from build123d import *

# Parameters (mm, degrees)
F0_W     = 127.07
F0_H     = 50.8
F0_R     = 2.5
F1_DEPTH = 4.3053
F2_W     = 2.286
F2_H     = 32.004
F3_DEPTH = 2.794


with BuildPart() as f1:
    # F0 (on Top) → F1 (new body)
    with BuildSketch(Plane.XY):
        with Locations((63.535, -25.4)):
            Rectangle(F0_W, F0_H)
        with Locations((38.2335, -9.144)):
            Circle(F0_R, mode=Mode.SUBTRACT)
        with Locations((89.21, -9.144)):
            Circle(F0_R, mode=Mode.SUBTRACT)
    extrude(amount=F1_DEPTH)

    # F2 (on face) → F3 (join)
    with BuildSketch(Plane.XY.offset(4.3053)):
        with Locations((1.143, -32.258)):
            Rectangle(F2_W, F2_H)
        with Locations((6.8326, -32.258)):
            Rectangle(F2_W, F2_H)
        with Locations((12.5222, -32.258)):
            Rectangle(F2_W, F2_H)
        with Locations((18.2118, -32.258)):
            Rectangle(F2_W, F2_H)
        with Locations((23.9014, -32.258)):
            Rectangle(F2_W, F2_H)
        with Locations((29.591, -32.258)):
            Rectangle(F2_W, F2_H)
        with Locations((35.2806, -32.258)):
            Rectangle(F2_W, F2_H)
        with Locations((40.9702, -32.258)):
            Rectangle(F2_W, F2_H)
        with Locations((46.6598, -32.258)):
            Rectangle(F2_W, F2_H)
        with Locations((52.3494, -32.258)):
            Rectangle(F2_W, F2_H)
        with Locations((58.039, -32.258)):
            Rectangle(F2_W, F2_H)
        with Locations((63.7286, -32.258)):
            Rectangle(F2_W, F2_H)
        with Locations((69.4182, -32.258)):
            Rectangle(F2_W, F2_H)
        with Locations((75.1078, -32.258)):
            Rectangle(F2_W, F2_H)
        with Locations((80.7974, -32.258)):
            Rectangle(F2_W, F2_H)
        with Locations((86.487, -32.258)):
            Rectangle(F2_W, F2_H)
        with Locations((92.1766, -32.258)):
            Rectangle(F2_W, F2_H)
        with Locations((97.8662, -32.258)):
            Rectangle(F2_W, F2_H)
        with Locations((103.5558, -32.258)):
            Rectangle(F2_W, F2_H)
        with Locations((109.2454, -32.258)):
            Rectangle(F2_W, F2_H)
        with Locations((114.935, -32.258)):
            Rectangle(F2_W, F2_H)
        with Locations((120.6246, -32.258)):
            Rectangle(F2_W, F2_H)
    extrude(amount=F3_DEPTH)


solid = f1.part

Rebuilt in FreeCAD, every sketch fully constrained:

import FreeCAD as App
import Part
import Sketcher
Q = App.Units.Quantity

doc = App.newDocument("Part")
body = doc.addObject("PartDesign::Body", "Body")

# Sketch on XY plane
sketch1 = body.newObject("Sketcher::SketchObject", "Sketch")
sketch1.AttachmentSupport = (doc.getObject("XY_Plane"), [""])
sketch1.MapMode = "FlatFace"
sketch1.addGeometry([
    Part.LineSegment(App.Vector(0, 0, 0), App.Vector(0, -50.8, 0)),  # 0
    Part.LineSegment(App.Vector(0, -50.8, 0), App.Vector(127.07, -50.8, 0)),  # 1
    Part.LineSegment(App.Vector(127.07, -50.8, 0), App.Vector(127.07, 0, 0)),  # 2
    Part.LineSegment(App.Vector(127.07, 0, 0), App.Vector(0, 0, 0)),  # 3
    Part.Circle(App.Vector(38.2335, -9.144, 0), App.Vector(0, 0, 1), 2.5),  # 4
    Part.Circle(App.Vector(89.21, -9.144, 0), App.Vector(0, 0, 1), 2.5),  # 5
], False)
sketch1.addConstraint([
    Sketcher.Constraint("Coincident", 0, 2, 1, 1),
    Sketcher.Constraint("Coincident", 1, 2, 2, 1),
    Sketcher.Constraint("Coincident", 2, 2, 3, 1),
    Sketcher.Constraint("Coincident", 3, 2, 0, 1),
    Sketcher.Constraint("Vertical", 0),
    Sketcher.Constraint("Horizontal", 1),
    Sketcher.Constraint("Vertical", 2),
    Sketcher.Constraint("Horizontal", 3),
    Sketcher.Constraint("Coincident", 3, 2, -1, 1),
    Sketcher.Constraint("Equal", 4, 5),
    Sketcher.Constraint("Horizontal", 4, 3, 5, 3),
    Sketcher.Constraint("DistanceY", 0, 2, 0, 1, Q("2 in")),
    Sketcher.Constraint("Diameter", 4, 5.0),
    Sketcher.Constraint("DistanceY", 4, 3, -1, 1, Q("0.36 in")),
    Sketcher.Constraint("DistanceX", 1, 1, 1, 2, 127.07),
    Sketcher.Constraint("DistanceX", 4, 3, 1, 2, Q("3.4975 in")),
    Sketcher.Constraint("DistanceX", -1, 1, 5, 3, 89.21),
])
pad1 = body.newObject("PartDesign::Pad", "Pad")
pad1.Profile = sketch1
pad1.Length = Q("0.1695 in")

# Sketch on XY plane
sketch2 = body.newObject("Sketcher::SketchObject", "Sketch001")
sketch2.AttachmentSupport = (doc.getObject("XY_Plane"), [""])
sketch2.MapMode = "FlatFace"
sketch2.AttachmentOffset = App.Placement(App.Vector(0, 0, 0.1695 * 25.4), App.Rotation())
sketch2.addGeometry([
    Part.LineSegment(App.Vector(0, -16.256, 0), App.Vector(0, -48.26, 0)),  # 0
    Part.LineSegment(App.Vector(0, -48.26, 0), App.Vector(2.286, -48.26, 0)),  # 1
    Part.LineSegment(App.Vector(2.286, -48.26, 0), App.Vector(2.286, -16.256, 0)),  # 2
    Part.LineSegment(App.Vector(2.286, -16.256, 0), App.Vector(0, -16.256, 0)),  # 3
    Part.LineSegment(App.Vector(5.6896, -16.256, 0), App.Vector(5.6896, -48.26, 0)),  # 4
    Part.LineSegment(App.Vector(5.6896, -48.26, 0), App.Vector(7.9756, -48.26, 0)),  # 5
    Part.LineSegment(App.Vector(7.9756, -48.26, 0), App.Vector(7.9756, -16.256, 0)),  # 6
    Part.LineSegment(App.Vector(7.9756, -16.256, 0), App.Vector(5.6896, -16.256, 0)),  # 7
    Part.LineSegment(App.Vector(11.3792, -16.256, 0), App.Vector(11.3792, -48.26, 0)),  # 8
    Part.LineSegment(App.Vector(11.3792, -48.26, 0), App.Vector(13.6652, -48.26, 0)),  # 9
    Part.LineSegment(App.Vector(13.6652, -48.26, 0), App.Vector(13.6652, -16.256, 0)),  # 10
    Part.LineSegment(App.Vector(13.6652, -16.256, 0), App.Vector(11.3792, -16.256, 0)),  # 11
    Part.LineSegment(App.Vector(17.0688, -16.256, 0), App.Vector(17.0688, -48.26, 0)),  # 12
    Part.LineSegment(App.Vector(17.0688, -48.26, 0), App.Vector(19.3548, -48.26, 0)),  # 13
    Part.LineSegment(App.Vector(19.3548, -48.26, 0), App.Vector(19.3548, -16.256, 0)),  # 14
    Part.LineSegment(App.Vector(19.3548, -16.256, 0), App.Vector(17.0688, -16.256, 0)),  # 15
    Part.LineSegment(App.Vector(22.7584, -16.256, 0), App.Vector(22.7584, -48.26, 0)),  # 16
    Part.LineSegment(App.Vector(22.7584, -48.26, 0), App.Vector(25.0444, -48.26, 0)),  # 17
    Part.LineSegment(App.Vector(25.0444, -48.26, 0), App.Vector(25.0444, -16.256, 0)),  # 18
    Part.LineSegment(App.Vector(25.0444, -16.256, 0), App.Vector(22.7584, -16.256, 0)),  # 19
    Part.LineSegment(App.Vector(28.448, -16.256, 0), App.Vector(28.448, -48.26, 0)),  # 20
    Part.LineSegment(App.Vector(28.448, -48.26, 0), App.Vector(30.734, -48.26, 0)),  # 21
    Part.LineSegment(App.Vector(30.734, -48.26, 0), App.Vector(30.734, -16.256, 0)),  # 22
    Part.LineSegment(App.Vector(30.734, -16.256, 0), App.Vector(28.448, -16.256, 0)),  # 23
    Part.LineSegment(App.Vector(34.1376, -16.256, 0), App.Vector(34.1376, -48.26, 0)),  # 24
    Part.LineSegment(App.Vector(34.1376, -48.26, 0), App.Vector(36.4236, -48.26, 0)),  # 25
    Part.LineSegment(App.Vector(36.4236, -48.26, 0), App.Vector(36.4236, -16.256, 0)),  # 26
    Part.LineSegment(App.Vector(36.4236, -16.256, 0), App.Vector(34.1376, -16.256, 0)),  # 27
    Part.LineSegment(App.Vector(39.8272, -16.256, 0), App.Vector(39.8272, -48.26, 0)),  # 28
    Part.LineSegment(App.Vector(39.8272, -48.26, 0), App.Vector(42.1132, -48.26, 0)),  # 29
    Part.LineSegment(App.Vector(42.1132, -48.26, 0), App.Vector(42.1132, -16.256, 0)),  # 30
    Part.LineSegment(App.Vector(42.1132, -16.256, 0), App.Vector(39.8272, -16.256, 0)),  # 31
    Part.LineSegment(App.Vector(45.5168, -16.256, 0), App.Vector(45.5168, -48.26, 0)),  # 32
    Part.LineSegment(App.Vector(45.5168, -48.26, 0), App.Vector(47.8028, -48.26, 0)),  # 33
    Part.LineSegment(App.Vector(47.8028, -48.26, 0), App.Vector(47.8028, -16.256, 0)),  # 34
    Part.LineSegment(App.Vector(47.8028, -16.256, 0), App.Vector(45.5168, -16.256, 0)),  # 35
    Part.LineSegment(App.Vector(51.2064, -16.256, 0), App.Vector(51.2064, -48.26, 0)),  # 36
    Part.LineSegment(App.Vector(51.2064, -48.26, 0), App.Vector(53.4924, -48.26, 0)),  # 37
    Part.LineSegment(App.Vector(53.4924, -48.26, 0), App.Vector(53.4924, -16.256, 0)),  # 38
    Part.LineSegment(App.Vector(53.4924, -16.256, 0), App.Vector(51.2064, -16.256, 0)),  # 39
    Part.LineSegment(App.Vector(56.896, -16.256, 0), App.Vector(56.896, -48.26, 0)),  # 40
    Part.LineSegment(App.Vector(56.896, -48.26, 0), App.Vector(59.182, -48.26, 0)),  # 41
    Part.LineSegment(App.Vector(59.182, -48.26, 0), App.Vector(59.182, -16.256, 0)),  # 42
    Part.LineSegment(App.Vector(59.182, -16.256, 0), App.Vector(56.896, -16.256, 0)),  # 43
    Part.LineSegment(App.Vector(62.5856, -16.256, 0), App.Vector(62.5856, -48.26, 0)),  # 44
    Part.LineSegment(App.Vector(62.5856, -48.26, 0), App.Vector(64.8716, -48.26, 0)),  # 45
    Part.LineSegment(App.Vector(64.8716, -48.26, 0), App.Vector(64.8716, -16.256, 0)),  # 46
    Part.LineSegment(App.Vector(64.8716, -16.256, 0), App.Vector(62.5856, -16.256, 0)),  # 47
    Part.LineSegment(App.Vector(68.2752, -16.256, 0), App.Vector(68.2752, -48.26, 0)),  # 48
    Part.LineSegment(App.Vector(68.2752, -48.26, 0), App.Vector(70.5612, -48.26, 0)),  # 49
    Part.LineSegment(App.Vector(70.5612, -48.26, 0), App.Vector(70.5612, -16.256, 0)),  # 50
    Part.LineSegment(App.Vector(70.5612, -16.256, 0), App.Vector(68.2752, -16.256, 0)),  # 51
    Part.LineSegment(App.Vector(73.9648, -16.256, 0), App.Vector(73.9648, -48.26, 0)),  # 52
    Part.LineSegment(App.Vector(73.9648, -48.26, 0), App.Vector(76.2508, -48.26, 0)),  # 53
    Part.LineSegment(App.Vector(76.2508, -48.26, 0), App.Vector(76.2508, -16.256, 0)),  # 54
    Part.LineSegment(App.Vector(76.2508, -16.256, 0), App.Vector(73.9648, -16.256, 0)),  # 55
    Part.LineSegment(App.Vector(79.6544, -16.256, 0), App.Vector(79.6544, -48.26, 0)),  # 56
    Part.LineSegment(App.Vector(79.6544, -48.26, 0), App.Vector(81.9404, -48.26, 0)),  # 57
    Part.LineSegment(App.Vector(81.9404, -48.26, 0), App.Vector(81.9404, -16.256, 0)),  # 58
    Part.LineSegment(App.Vector(81.9404, -16.256, 0), App.Vector(79.6544, -16.256, 0)),  # 59
    Part.LineSegment(App.Vector(85.344, -16.256, 0), App.Vector(85.344, -48.26, 0)),  # 60
    Part.LineSegment(App.Vector(85.344, -48.26, 0), App.Vector(87.63, -48.26, 0)),  # 61
    Part.LineSegment(App.Vector(87.63, -48.26, 0), App.Vector(87.63, -16.256, 0)),  # 62
    Part.LineSegment(App.Vector(87.63, -16.256, 0), App.Vector(85.344, -16.256, 0)),  # 63
    Part.LineSegment(App.Vector(91.0336, -16.256, 0), App.Vector(91.0336, -48.26, 0)),  # 64
    Part.LineSegment(App.Vector(91.0336, -48.26, 0), App.Vector(93.3196, -48.26, 0)),  # 65
    Part.LineSegment(App.Vector(93.3196, -48.26, 0), App.Vector(93.3196, -16.256, 0)),  # 66
    Part.LineSegment(App.Vector(93.3196, -16.256, 0), App.Vector(91.0336, -16.256, 0)),  # 67
    Part.LineSegment(App.Vector(96.7232, -16.256, 0), App.Vector(96.7232, -48.26, 0)),  # 68
    Part.LineSegment(App.Vector(96.7232, -48.26, 0), App.Vector(99.0092, -48.26, 0)),  # 69
    Part.LineSegment(App.Vector(99.0092, -48.26, 0), App.Vector(99.0092, -16.256, 0)),  # 70
    Part.LineSegment(App.Vector(99.0092, -16.256, 0), App.Vector(96.7232, -16.256, 0)),  # 71
    Part.LineSegment(App.Vector(102.4128, -16.256, 0), App.Vector(102.4128, -48.26, 0)),  # 72
    Part.LineSegment(App.Vector(102.4128, -48.26, 0), App.Vector(104.6988, -48.26, 0)),  # 73
    Part.LineSegment(App.Vector(104.6988, -48.26, 0), App.Vector(104.6988, -16.256, 0)),  # 74
    Part.LineSegment(App.Vector(104.6988, -16.256, 0), App.Vector(102.4128, -16.256, 0)),  # 75
    Part.LineSegment(App.Vector(108.1024, -16.256, 0), App.Vector(108.1024, -48.26, 0)),  # 76
    Part.LineSegment(App.Vector(108.1024, -48.26, 0), App.Vector(110.3884, -48.26, 0)),  # 77
    Part.LineSegment(App.Vector(110.3884, -48.26, 0), App.Vector(110.3884, -16.256, 0)),  # 78
    Part.LineSegment(App.Vector(110.3884, -16.256, 0), App.Vector(108.1024, -16.256, 0)),  # 79
    Part.LineSegment(App.Vector(113.792, -16.256, 0), App.Vector(113.792, -48.26, 0)),  # 80
    Part.LineSegment(App.Vector(113.792, -48.26, 0), App.Vector(116.078, -48.26, 0)),  # 81
    Part.LineSegment(App.Vector(116.078, -48.26, 0), App.Vector(116.078, -16.256, 0)),  # 82
    Part.LineSegment(App.Vector(116.078, -16.256, 0), App.Vector(113.792, -16.256, 0)),  # 83
    Part.LineSegment(App.Vector(119.4816, -16.256, 0), App.Vector(119.4816, -48.26, 0)),  # 84
    Part.LineSegment(App.Vector(119.4816, -48.26, 0), App.Vector(121.7676, -48.26, 0)),  # 85
    Part.LineSegment(App.Vector(121.7676, -48.26, 0), App.Vector(121.7676, -16.256, 0)),  # 86
    Part.LineSegment(App.Vector(121.7676, -16.256, 0), App.Vector(119.4816, -16.256, 0)),  # 87
], False)
sketch2.addConstraint([
    Sketcher.Constraint("Coincident", 0, 2, 1, 1),
    Sketcher.Constraint("Coincident", 1, 2, 2, 1),
    Sketcher.Constraint("Coincident", 2, 2, 3, 1),
    Sketcher.Constraint("Coincident", 3, 2, 0, 1),
    Sketcher.Constraint("Coincident", 4, 2, 5, 1),
    Sketcher.Constraint("Coincident", 5, 2, 6, 1),
    Sketcher.Constraint("Coincident", 6, 2, 7, 1),
    Sketcher.Constraint("Coincident", 7, 2, 4, 1),
    Sketcher.Constraint("Coincident", 8, 2, 9, 1),
    Sketcher.Constraint("Coincident", 9, 2, 10, 1),
    Sketcher.Constraint("Coincident", 10, 2, 11, 1),
    Sketcher.Constraint("Coincident", 11, 2, 8, 1),
    Sketcher.Constraint("Coincident", 12, 2, 13, 1),
    Sketcher.Constraint("Coincident", 13, 2, 14, 1),
    Sketcher.Constraint("Coincident", 14, 2, 15, 1),
    Sketcher.Constraint("Coincident", 15, 2, 12, 1),
    Sketcher.Constraint("Coincident", 16, 2, 17, 1),
    Sketcher.Constraint("Coincident", 17, 2, 18, 1),
    Sketcher.Constraint("Coincident", 18, 2, 19, 1),
    Sketcher.Constraint("Coincident", 19, 2, 16, 1),
    Sketcher.Constraint("Coincident", 20, 2, 21, 1),
    Sketcher.Constraint("Coincident", 21, 2, 22, 1),
    Sketcher.Constraint("Coincident", 22, 2, 23, 1),
    Sketcher.Constraint("Coincident", 23, 2, 20, 1),
    Sketcher.Constraint("Coincident", 24, 2, 25, 1),
    Sketcher.Constraint("Coincident", 25, 2, 26, 1),
    Sketcher.Constraint("Coincident", 26, 2, 27, 1),
    Sketcher.Constraint("Coincident", 27, 2, 24, 1),
    Sketcher.Constraint("Coincident", 28, 2, 29, 1),
    Sketcher.Constraint("Coincident", 29, 2, 30, 1),
    Sketcher.Constraint("Coincident", 30, 2, 31, 1),
    Sketcher.Constraint("Coincident", 31, 2, 28, 1),
    Sketcher.Constraint("Coincident", 32, 2, 33, 1),
    Sketcher.Constraint("Coincident", 33, 2, 34, 1),
    Sketcher.Constraint("Coincident", 34, 2, 35, 1),
    Sketcher.Constraint("Coincident", 35, 2, 32, 1),
    Sketcher.Constraint("Coincident", 36, 2, 37, 1),
    Sketcher.Constraint("Coincident", 37, 2, 38, 1),
    Sketcher.Constraint("Coincident", 38, 2, 39, 1),
    Sketcher.Constraint("Coincident", 39, 2, 36, 1),
    Sketcher.Constraint("Coincident", 40, 2, 41, 1),
    Sketcher.Constraint("Coincident", 41, 2, 42, 1),
    Sketcher.Constraint("Coincident", 42, 2, 43, 1),
    Sketcher.Constraint("Coincident", 43, 2, 40, 1),
    Sketcher.Constraint("Coincident", 44, 2, 45, 1),
    Sketcher.Constraint("Coincident", 45, 2, 46, 1),
    Sketcher.Constraint("Coincident", 46, 2, 47, 1),
    Sketcher.Constraint("Coincident", 47, 2, 44, 1),
    Sketcher.Constraint("Coincident", 48, 2, 49, 1),
    Sketcher.Constraint("Coincident", 49, 2, 50, 1),
    Sketcher.Constraint("Coincident", 50, 2, 51, 1),
    Sketcher.Constraint("Coincident", 51, 2, 48, 1),
    Sketcher.Constraint("Coincident", 52, 2, 53, 1),
    Sketcher.Constraint("Coincident", 53, 2, 54, 1),
    Sketcher.Constraint("Coincident", 54, 2, 55, 1),
    Sketcher.Constraint("Coincident", 55, 2, 52, 1),
    Sketcher.Constraint("Coincident", 56, 2, 57, 1),
    Sketcher.Constraint("Coincident", 57, 2, 58, 1),
    Sketcher.Constraint("Coincident", 58, 2, 59, 1),
    Sketcher.Constraint("Coincident", 59, 2, 56, 1),
    Sketcher.Constraint("Coincident", 60, 2, 61, 1),
    Sketcher.Constraint("Coincident", 61, 2, 62, 1),
    Sketcher.Constraint("Coincident", 62, 2, 63, 1),
    Sketcher.Constraint("Coincident", 63, 2, 60, 1),
    Sketcher.Constraint("Coincident", 64, 2, 65, 1),
    Sketcher.Constraint("Coincident", 65, 2, 66, 1),
    Sketcher.Constraint("Coincident", 66, 2, 67, 1),
    Sketcher.Constraint("Coincident", 67, 2, 64, 1),
    Sketcher.Constraint("Coincident", 68, 2, 69, 1),
    Sketcher.Constraint("Coincident", 69, 2, 70, 1),
    Sketcher.Constraint("Coincident", 70, 2, 71, 1),
    Sketcher.Constraint("Coincident", 71, 2, 68, 1),
    Sketcher.Constraint("Coincident", 72, 2, 73, 1),
    Sketcher.Constraint("Coincident", 73, 2, 74, 1),
    Sketcher.Constraint("Coincident", 74, 2, 75, 1),
    Sketcher.Constraint("Coincident", 75, 2, 72, 1),
    Sketcher.Constraint("Coincident", 76, 2, 77, 1),
    Sketcher.Constraint("Coincident", 77, 2, 78, 1),
    Sketcher.Constraint("Coincident", 78, 2, 79, 1),
    Sketcher.Constraint("Coincident", 79, 2, 76, 1),
    Sketcher.Constraint("Coincident", 80, 2, 81, 1),
    Sketcher.Constraint("Coincident", 81, 2, 82, 1),
    Sketcher.Constraint("Coincident", 82, 2, 83, 1),
    Sketcher.Constraint("Coincident", 83, 2, 80, 1),
    Sketcher.Constraint("Coincident", 84, 2, 85, 1),
    Sketcher.Constraint("Coincident", 85, 2, 86, 1),
    Sketcher.Constraint("Coincident", 86, 2, 87, 1),
    Sketcher.Constraint("Coincident", 87, 2, 84, 1),
    Sketcher.Constraint("Vertical", 0),
    Sketcher.Constraint("Horizontal", 1),
    Sketcher.Constraint("Vertical", 2),
    Sketcher.Constraint("Horizontal", 3),
    Sketcher.Constraint("Vertical", 4),
    Sketcher.Constraint("Horizontal", 5),
    Sketcher.Constraint("Vertical", 6),
    Sketcher.Constraint("Horizontal", 7),
    Sketcher.Constraint("Vertical", 8),
    Sketcher.Constraint("Horizontal", 9),
    Sketcher.Constraint("Vertical", 10),
    Sketcher.Constraint("Horizontal", 11),
    Sketcher.Constraint("Vertical", 12),
    Sketcher.Constraint("Horizontal", 13),
    Sketcher.Constraint("Vertical", 14),
    Sketcher.Constraint("Horizontal", 15),
    Sketcher.Constraint("Vertical", 16),
    Sketcher.Constraint("Horizontal", 17),
    Sketcher.Constraint("Vertical", 18),
    Sketcher.Constraint("Horizontal", 19),
    Sketcher.Constraint("Vertical", 20),
    Sketcher.Constraint("Horizontal", 21),
    Sketcher.Constraint("Vertical", 22),
    Sketcher.Constraint("Horizontal", 23),
    Sketcher.Constraint("Vertical", 24),
    Sketcher.Constraint("Horizontal", 25),
    Sketcher.Constraint("Vertical", 26),
    Sketcher.Constraint("Horizontal", 27),
    Sketcher.Constraint("Vertical", 28),
    Sketcher.Constraint("Horizontal", 29),
    Sketcher.Constraint("Vertical", 30),
    Sketcher.Constraint("Horizontal", 31),
    Sketcher.Constraint("Vertical", 32),
    Sketcher.Constraint("Horizontal", 33),
    Sketcher.Constraint("Vertical", 34),
    Sketcher.Constraint("Horizontal", 35),
    Sketcher.Constraint("Vertical", 36),
    Sketcher.Constraint("Horizontal", 37),
    Sketcher.Constraint("Vertical", 38),
    Sketcher.Constraint("Horizontal", 39),
    Sketcher.Constraint("Vertical", 40),
    Sketcher.Constraint("Horizontal", 41),
    Sketcher.Constraint("Vertical", 42),
    Sketcher.Constraint("Horizontal", 43),
    Sketcher.Constraint("Vertical", 44),
    Sketcher.Constraint("Horizontal", 45),
    Sketcher.Constraint("Vertical", 46),
    Sketcher.Constraint("Horizontal", 47),
    Sketcher.Constraint("Vertical", 48),
    Sketcher.Constraint("Horizontal", 49),
    Sketcher.Constraint("Vertical", 50),
    Sketcher.Constraint("Horizontal", 51),
    Sketcher.Constraint("Vertical", 52),
    Sketcher.Constraint("Horizontal", 53),
    Sketcher.Constraint("Vertical", 54),
    Sketcher.Constraint("Horizontal", 55),
    Sketcher.Constraint("Vertical", 56),
    Sketcher.Constraint("Horizontal", 57),
    Sketcher.Constraint("Vertical", 58),
    Sketcher.Constraint("Horizontal", 59),
    Sketcher.Constraint("Vertical", 60),
    Sketcher.Constraint("Horizontal", 61),
    Sketcher.Constraint("Vertical", 62),
    Sketcher.Constraint("Horizontal", 63),
    Sketcher.Constraint("Vertical", 64),
    Sketcher.Constraint("Horizontal", 65),
    Sketcher.Constraint("Vertical", 66),
    Sketcher.Constraint("Horizontal", 67),
    Sketcher.Constraint("Vertical", 68),
    Sketcher.Constraint("Horizontal", 69),
    Sketcher.Constraint("Vertical", 70),
    Sketcher.Constraint("Horizontal", 71),
    Sketcher.Constraint("Vertical", 72),
    Sketcher.Constraint("Horizontal", 73),
    Sketcher.Constraint("Vertical", 74),
    Sketcher.Constraint("Horizontal", 75),
    Sketcher.Constraint("Vertical", 76),
    Sketcher.Constraint("Horizontal", 77),
    Sketcher.Constraint("Vertical", 78),
    Sketcher.Constraint("Horizontal", 79),
    Sketcher.Constraint("Vertical", 80),
    Sketcher.Constraint("Horizontal", 81),
    Sketcher.Constraint("Vertical", 82),
    Sketcher.Constraint("Horizontal", 83),
    Sketcher.Constraint("Vertical", 84),
    Sketcher.Constraint("Horizontal", 85),
    Sketcher.Constraint("Vertical", 86),
    Sketcher.Constraint("Horizontal", 87),
    Sketcher.Constraint("PointOnObject", 0, 2, -2),
    Sketcher.Constraint("Horizontal", 1, 2, 4, 2),
    Sketcher.Constraint("Horizontal", 3, 2, 6, 2),
    Sketcher.Constraint("Horizontal", 5, 2, 8, 2),
    Sketcher.Constraint("Horizontal", 7, 2, 10, 2),
    Sketcher.Constraint("Horizontal", 9, 2, 12, 2),
    Sketcher.Constraint("Horizontal", 11, 2, 14, 2),
    Sketcher.Constraint("Horizontal", 13, 2, 16, 2),
    Sketcher.Constraint("Horizontal", 15, 2, 18, 2),
    Sketcher.Constraint("Horizontal", 17, 2, 20, 2),
    Sketcher.Constraint("Horizontal", 19, 2, 22, 2),
    Sketcher.Constraint("Horizontal", 21, 2, 24, 2),
    Sketcher.Constraint("Horizontal", 23, 2, 26, 2),
    Sketcher.Constraint("Horizontal", 25, 2, 28, 2),
    Sketcher.Constraint("Horizontal", 27, 2, 30, 2),
    Sketcher.Constraint("Horizontal", 29, 2, 32, 2),
    Sketcher.Constraint("Horizontal", 31, 2, 34, 2),
    Sketcher.Constraint("Horizontal", 33, 2, 36, 2),
    Sketcher.Constraint("Horizontal", 35, 2, 38, 2),
    Sketcher.Constraint("Horizontal", 37, 2, 40, 2),
    Sketcher.Constraint("Horizontal", 39, 2, 42, 2),
    Sketcher.Constraint("Horizontal", 41, 2, 44, 2),
    Sketcher.Constraint("Horizontal", 43, 2, 46, 2),
    Sketcher.Constraint("Horizontal", 45, 2, 48, 2),
    Sketcher.Constraint("Horizontal", 47, 2, 50, 2),
    Sketcher.Constraint("Horizontal", 49, 2, 52, 2),
    Sketcher.Constraint("Horizontal", 51, 2, 54, 2),
    Sketcher.Constraint("Horizontal", 53, 2, 56, 2),
    Sketcher.Constraint("Horizontal", 55, 2, 58, 2),
    Sketcher.Constraint("Horizontal", 57, 2, 60, 2),
    Sketcher.Constraint("Horizontal", 59, 2, 62, 2),
    Sketcher.Constraint("Horizontal", 61, 2, 64, 2),
    Sketcher.Constraint("Horizontal", 63, 2, 66, 2),
    Sketcher.Constraint("Horizontal", 65, 2, 68, 2),
    Sketcher.Constraint("Horizontal", 67, 2, 70, 2),
    Sketcher.Constraint("Horizontal", 69, 2, 72, 2),
    Sketcher.Constraint("Horizontal", 71, 2, 74, 2),
    Sketcher.Constraint("Horizontal", 73, 2, 76, 2),
    Sketcher.Constraint("Horizontal", 75, 2, 78, 2),
    Sketcher.Constraint("Horizontal", 77, 2, 80, 2),
    Sketcher.Constraint("Horizontal", 79, 2, 82, 2),
    Sketcher.Constraint("Horizontal", 81, 2, 84, 2),
    Sketcher.Constraint("Horizontal", 83, 2, 86, 2),
    Sketcher.Constraint("Equal", 3, 5),
    Sketcher.Constraint("Equal", 7, 9),
    Sketcher.Constraint("Equal", 11, 13),
    Sketcher.Constraint("Equal", 15, 17),
    Sketcher.Constraint("Equal", 19, 21),
    Sketcher.Constraint("Equal", 23, 25),
    Sketcher.Constraint("Equal", 27, 29),
    Sketcher.Constraint("Equal", 31, 33),
    Sketcher.Constraint("Equal", 35, 37),
    Sketcher.Constraint("Equal", 39, 41),
    Sketcher.Constraint("Equal", 43, 45),
    Sketcher.Constraint("Equal", 47, 49),
    Sketcher.Constraint("Equal", 51, 53),
    Sketcher.Constraint("Equal", 55, 57),
    Sketcher.Constraint("Equal", 59, 61),
    Sketcher.Constraint("Equal", 63, 65),
    Sketcher.Constraint("Equal", 67, 69),
    Sketcher.Constraint("Equal", 71, 73),
    Sketcher.Constraint("Equal", 75, 77),
    Sketcher.Constraint("Equal", 79, 81),
    Sketcher.Constraint("Equal", 83, 85),
    Sketcher.Constraint("DistanceX", 1, 1, 1, 2, Q("0.09 in")),
    Sketcher.Constraint("DistanceY", 0, 2, 0, 1, Q("1.26 in")),
    Sketcher.Constraint("DistanceY", 0, 2, -1, 1, Q("1.9 in")),
    Sketcher.Constraint("DistanceX", -1, 1, 20, 2, Q("1.12 in")),
    Sketcher.Constraint("DistanceX", -1, 1, 40, 2, Q("2.24 in")),
    Sketcher.Constraint("DistanceX", -1, 1, 60, 2, Q("3.36 in")),
    Sketcher.Constraint("DistanceX", -1, 1, 80, 2, Q("4.48 in")),
    Sketcher.Constraint("DistanceX", -1, 1, 4, 2, Q("0.224 in")),
    Sketcher.Constraint("DistanceX", -1, 1, 8, 2, Q("0.448 in")),
    Sketcher.Constraint("DistanceX", -1, 1, 12, 2, Q("0.672 in")),
    Sketcher.Constraint("DistanceX", -1, 1, 16, 2, Q("0.896 in")),
    Sketcher.Constraint("DistanceX", -1, 1, 24, 2, Q("1.344 in")),
    Sketcher.Constraint("DistanceX", -1, 1, 28, 2, Q("1.568 in")),
    Sketcher.Constraint("DistanceX", -1, 1, 32, 2, Q("1.792 in")),
    Sketcher.Constraint("DistanceX", -1, 1, 36, 2, Q("2.016 in")),
    Sketcher.Constraint("DistanceX", -1, 1, 44, 2, Q("2.464 in")),
    Sketcher.Constraint("DistanceX", -1, 1, 48, 2, Q("2.688 in")),
    Sketcher.Constraint("DistanceX", -1, 1, 52, 2, Q("2.912 in")),
    Sketcher.Constraint("DistanceX", -1, 1, 56, 2, Q("3.136 in")),
    Sketcher.Constraint("DistanceX", -1, 1, 64, 2, Q("3.584 in")),
    Sketcher.Constraint("DistanceX", -1, 1, 68, 2, Q("3.808 in")),
    Sketcher.Constraint("DistanceX", -1, 1, 72, 2, Q("4.032 in")),
    Sketcher.Constraint("DistanceX", -1, 1, 76, 2, Q("4.256 in")),
    Sketcher.Constraint("DistanceX", -1, 1, 84, 2, Q("4.704 in")),
])
pad2 = body.newObject("PartDesign::Pad", "Pad001")
pad2.Profile = sketch2
pad2.Length = Q("0.11 in")

doc.recompute()
